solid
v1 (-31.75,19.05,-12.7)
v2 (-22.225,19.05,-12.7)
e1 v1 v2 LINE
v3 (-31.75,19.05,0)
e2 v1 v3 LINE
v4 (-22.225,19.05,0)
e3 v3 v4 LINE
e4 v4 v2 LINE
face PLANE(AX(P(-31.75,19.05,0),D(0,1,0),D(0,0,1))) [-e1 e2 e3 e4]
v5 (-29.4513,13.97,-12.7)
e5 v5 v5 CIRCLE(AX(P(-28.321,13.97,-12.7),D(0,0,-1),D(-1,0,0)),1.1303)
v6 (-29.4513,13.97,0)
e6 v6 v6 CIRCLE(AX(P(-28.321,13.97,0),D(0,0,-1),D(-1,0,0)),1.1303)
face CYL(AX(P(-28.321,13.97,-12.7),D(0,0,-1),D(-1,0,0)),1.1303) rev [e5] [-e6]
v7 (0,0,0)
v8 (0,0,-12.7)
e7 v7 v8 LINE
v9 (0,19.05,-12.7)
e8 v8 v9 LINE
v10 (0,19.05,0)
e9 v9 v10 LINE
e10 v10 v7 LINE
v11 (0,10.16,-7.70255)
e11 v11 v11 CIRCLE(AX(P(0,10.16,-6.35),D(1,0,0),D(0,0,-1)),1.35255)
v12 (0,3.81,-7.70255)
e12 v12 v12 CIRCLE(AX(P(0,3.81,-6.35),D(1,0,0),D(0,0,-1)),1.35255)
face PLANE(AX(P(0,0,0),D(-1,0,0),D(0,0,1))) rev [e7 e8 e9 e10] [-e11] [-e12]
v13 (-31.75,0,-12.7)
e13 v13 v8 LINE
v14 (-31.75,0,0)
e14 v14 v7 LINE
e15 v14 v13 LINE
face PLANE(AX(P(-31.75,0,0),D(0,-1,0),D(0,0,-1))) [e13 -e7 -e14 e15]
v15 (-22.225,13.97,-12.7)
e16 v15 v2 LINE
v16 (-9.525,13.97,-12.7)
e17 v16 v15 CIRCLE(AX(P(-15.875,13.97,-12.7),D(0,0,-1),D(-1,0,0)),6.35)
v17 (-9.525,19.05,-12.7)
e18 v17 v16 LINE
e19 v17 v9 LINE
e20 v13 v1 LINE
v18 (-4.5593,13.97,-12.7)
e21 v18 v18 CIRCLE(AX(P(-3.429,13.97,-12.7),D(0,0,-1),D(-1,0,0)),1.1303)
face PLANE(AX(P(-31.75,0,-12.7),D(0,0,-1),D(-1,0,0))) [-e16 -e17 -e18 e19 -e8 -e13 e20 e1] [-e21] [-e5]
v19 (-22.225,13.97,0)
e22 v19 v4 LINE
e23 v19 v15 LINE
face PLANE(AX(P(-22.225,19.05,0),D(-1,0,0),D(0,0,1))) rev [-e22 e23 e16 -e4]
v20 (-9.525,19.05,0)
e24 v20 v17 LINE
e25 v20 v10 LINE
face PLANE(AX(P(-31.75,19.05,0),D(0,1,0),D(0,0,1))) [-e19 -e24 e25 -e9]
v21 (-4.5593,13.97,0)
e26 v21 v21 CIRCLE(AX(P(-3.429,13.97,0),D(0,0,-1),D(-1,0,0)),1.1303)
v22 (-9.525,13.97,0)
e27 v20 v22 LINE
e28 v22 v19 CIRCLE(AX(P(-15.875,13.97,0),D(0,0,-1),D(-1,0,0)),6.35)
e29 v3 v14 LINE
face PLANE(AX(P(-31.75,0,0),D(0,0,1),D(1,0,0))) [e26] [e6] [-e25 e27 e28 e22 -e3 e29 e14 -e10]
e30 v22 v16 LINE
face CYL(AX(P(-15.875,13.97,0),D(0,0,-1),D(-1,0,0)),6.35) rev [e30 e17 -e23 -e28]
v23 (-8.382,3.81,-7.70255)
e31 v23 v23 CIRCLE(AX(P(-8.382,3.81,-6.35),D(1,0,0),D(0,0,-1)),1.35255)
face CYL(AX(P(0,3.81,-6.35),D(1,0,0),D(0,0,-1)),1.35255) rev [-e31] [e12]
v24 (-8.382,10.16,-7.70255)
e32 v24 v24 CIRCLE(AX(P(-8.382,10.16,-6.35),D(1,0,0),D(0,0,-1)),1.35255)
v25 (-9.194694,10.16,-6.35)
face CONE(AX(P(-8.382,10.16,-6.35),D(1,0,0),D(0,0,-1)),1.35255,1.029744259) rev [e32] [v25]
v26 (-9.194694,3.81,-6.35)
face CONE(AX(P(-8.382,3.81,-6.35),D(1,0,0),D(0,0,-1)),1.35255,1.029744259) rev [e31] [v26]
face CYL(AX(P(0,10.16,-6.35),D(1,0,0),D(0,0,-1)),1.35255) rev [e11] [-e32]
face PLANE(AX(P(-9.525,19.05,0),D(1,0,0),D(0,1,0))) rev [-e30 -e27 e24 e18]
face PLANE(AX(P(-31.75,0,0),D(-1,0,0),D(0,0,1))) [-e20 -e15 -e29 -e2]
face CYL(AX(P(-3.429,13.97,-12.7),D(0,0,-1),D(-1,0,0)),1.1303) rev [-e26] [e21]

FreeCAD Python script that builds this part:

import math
import FreeCAD as App
import Part
import Sketcher

V = App.Vector
Q = App.Units.Quantity

doc = App.newDocument("Part")
params = doc.addObject("Spreadsheet::Sheet", "Params")
for row, (alias, value) in enumerate([
    ("sketch1_height", "0.5 in"),
    ("sketch1_width", "0.75 in"),
    ("pad1_length", "1.25 in"),
    ("sketch2_radius", "0.25 in"),
    ("sketch2_height", "0.2 in"),
    ("sketch3_diameter", "0.089 in"),
    ("hole_diameter", "0.089 in"),
    ("hole2_diameter", "0.1065 in"),
    ("hole2_depth", "0.33 in"),
], start=1):
    params.set(f"A{row}", alias)
    params.set(f"B{row}", "=" + value)
    params.setAlias(f"B{row}", alias)

body = doc.addObject("PartDesign::Body", "Body")

# Sketch on YZ plane
sketch1 = doc.addObject("Sketcher::SketchObject", "Sketch")
body.addObject(sketch1)
sketch1.AttachmentSupport = (doc.YZ_Plane, [""])
sketch1.MapMode = "FlatFace"
sketch1.addGeometry(Part.LineSegment(V(19, 0, 0), V(0, 0, 0)), False)
sketch1.addGeometry(Part.LineSegment(V(0, 0, 0), V(0, -13, 0)), False)
sketch1.addGeometry(Part.LineSegment(V(0, -13, 0), V(19, -13, 0)), False)
sketch1.addGeometry(Part.LineSegment(V(19, -13, 0), V(19, 0, 0)), False)
sketch1.addConstraint(Sketcher.Constraint("Coincident", 0, 2, 1, 1))
sketch1.addConstraint(Sketcher.Constraint("Coincident", 1, 2, 2, 1))
sketch1.addConstraint(Sketcher.Constraint("Coincident", 2, 2, 3, 1))
sketch1.addConstraint(Sketcher.Constraint("Coincident", 3, 2, 0, 1))
sketch1.addConstraint(Sketcher.Constraint("Horizontal", 0))
sketch1.addConstraint(Sketcher.Constraint("Vertical", 1))
sketch1.addConstraint(Sketcher.Constraint("Horizontal", 2))
sketch1.addConstraint(Sketcher.Constraint("Vertical", 3))
sketch1.addConstraint(Sketcher.Constraint("Coincident", 0, 2, -1, 1))
sketch1.addConstraint(Sketcher.Constraint("DistanceY", 1, 2, 1, 1, Q("0.5 in")))
sketch1.addConstraint(Sketcher.Constraint("DistanceX", 0, 2, 0, 1, Q("0.75 in")))
sketch1.setExpression("Constraints[9]", "Params.sketch1_height")
sketch1.setExpression("Constraints[10]", "Params.sketch1_width")
pad1 = doc.addObject("PartDesign::Pad", "Pad")
body.addObject(pad1)
pad1.Profile = sketch1
pad1.setExpression("Length", "Params.pad1_length")
pad1.Reversed = True

# Sketch on XY plane
sketch2 = doc.addObject("Sketcher::SketchObject", "Sketch001")
body.addObject(sketch2)
sketch2.AttachmentSupport = (doc.XY_Plane, [""])
sketch2.MapMode = "FlatFace"
sketch2.AttachmentOffset = App.Placement(V(0, 0, -0.5 * 25.4), App.Rotation())
sketch2.addGeometry(Part.LineSegment(V(-22, 14, 0), V(-22, 19, 0)), False)
sketch2.addGeometry(Part.ArcOfCircle(Part.Circle(V(-16, 19, 0), V(0, 0, 1), 6), math.radians(0), math.radians(180)), False)
sketch2.addGeometry(Part.LineSegment(V(-10, 19, 0), V(-10, 14, 0)), False)
sketch2.addGeometry(Part.ArcOfCircle(Part.Circle(V(-16, 14, 0), V(0, 0, 1), 6), math.radians(180), math.radians(360)), False)
sketch2.addConstraint(Sketcher.Constraint("Tangent", 0, 2, 1, 2))
sketch2.addConstraint(Sketcher.Constraint("Tangent", 1, 1, 2, 1))
sketch2.addConstraint(Sketcher.Constraint("Tangent", 2, 2, 3, 2))
sketch2.addConstraint(Sketcher.Constraint("Tangent", 3, 1, 0, 1))
sketch2.addConstraint(Sketcher.Constraint("Vertical", 0))
sketch2.addConstraint(Sketcher.Constraint("Vertical", 2))
sketch2.addConstraint(Sketcher.Constraint("Radius", 1, Q("0.25 in")))
sketch2.addConstraint(Sketcher.Constraint("DistanceY", 0, 1, 0, 2, Q("0.2 in")))
sketch2.addConstraint(Sketcher.Constraint("DistanceY", -1, 1, 1, 3, Q("0.75 in")))
sketch2.addConstraint(Sketcher.Constraint("DistanceX", 1, 3, -1, 1, Q("0.625 in")))
sketch2.setExpression("Constraints[6]", "Params.sketch2_radius")
sketch2.setExpression("Constraints[7]", "Params.sketch2_height")
pocket1 = doc.addObject("PartDesign::Pocket", "Pocket")
body.addObject(pocket1)
pocket1.Profile = sketch2
pocket1.Type = "ThroughAll"
pocket1.Reversed = True

# Sketch on XY plane
sketch3 = doc.addObject("Sketcher::SketchObject", "Sketch002")
body.addObject(sketch3)
sketch3.AttachmentSupport = (doc.XY_Plane, [""])
sketch3.MapMode = "FlatFace"
sketch3.AttachmentOffset = App.Placement(V(0, 0, -0.5 * 25.4), App.Rotation())
sketch3.addGeometry(Part.Circle(V(-3.4, 14, 0), V(0, 0, 1), 1.1), False)
sketch3.addGeometry(Part.Circle(V(-28.3, 14, 0), V(0, 0, 1), 1.1), False)
sketch3.addConstraint(Sketcher.Constraint("Equal", 0, 1))
sketch3.addConstraint(Sketcher.Constraint("Horizontal", 0, 3, 1, 3))
sketch3.addConstraint(Sketcher.Constraint("Diameter", 0, Q("0.089 in")))
sketch3.addConstraint(Sketcher.Constraint("DistanceY", -1, 1, 0, 3, Q("0.55 in")))
sketch3.addConstraint(Sketcher.Constraint("DistanceX", 1, 3, 0, 3, Q("0.98 in")))
sketch3.addConstraint(Sketcher.Constraint("DistanceX", 0, 3, -1, 1, Q("0.135 in")))
sketch3.setExpression("Constraints[2]", "Params.sketch3_diameter")
doc.recompute()
hole = doc.addObject("PartDesign::Hole", "Hole")
body.addObject(hole)
hole.Profile = sketch3
hole.ThreadType = "None"
hole.setExpression("Diameter", "Params.hole_diameter")
hole.DepthType = "ThroughAll"
hole.Reversed = True

# Sketch on YZ plane
sketch4 = doc.addObject("Sketcher::SketchObject", "Sketch003")
body.addObject(sketch4)
sketch4.AttachmentSupport = (doc.YZ_Plane, [""])
sketch4.MapMode = "FlatFace"
sketch4.addGeometry(Part.Circle(V(3.8, -6.3, 0), V(0, 0, 1), 1.4), False)
sketch4.addGeometry(Part.Circle(V(10.2, -6.3, 0), V(0, 0, 1), 1.4), False)
sketch4.addConstraint(Sketcher.Constraint("Equal", 0, 1))
sketch4.addConstraint(Sketcher.Constraint("Horizontal", 0, 3, 1, 3))
sketch4.addConstraint(Sketcher.Constraint("Diameter", 0, Q("0.1065 in")))
sketch4.addConstraint(Sketcher.Constraint("DistanceX", -1, 1, 1, 3, Q("0.4 in")))
sketch4.addConstraint(Sketcher.Constraint("DistanceX", -1, 1, 0, 3, Q("0.15 in")))
sketch4.addConstraint(Sketcher.Constraint("DistanceY", 0, 3, -1, 1, Q("0.25 in")))
doc.recompute()
hole2 = doc.addObject("PartDesign::Hole", "Hole001")
body.addObject(hole2)
hole2.Profile = sketch4
hole2.ThreadType = "None"
hole2.setExpression("Diameter", "Params.hole2_diameter")
hole2.DepthType = "Dimension"
hole2.setExpression("Depth", "Params.hole2_depth")
hole2.DrillPoint = "Angled"
hole2.DrillPointAngle = 118

doc.recompute()
